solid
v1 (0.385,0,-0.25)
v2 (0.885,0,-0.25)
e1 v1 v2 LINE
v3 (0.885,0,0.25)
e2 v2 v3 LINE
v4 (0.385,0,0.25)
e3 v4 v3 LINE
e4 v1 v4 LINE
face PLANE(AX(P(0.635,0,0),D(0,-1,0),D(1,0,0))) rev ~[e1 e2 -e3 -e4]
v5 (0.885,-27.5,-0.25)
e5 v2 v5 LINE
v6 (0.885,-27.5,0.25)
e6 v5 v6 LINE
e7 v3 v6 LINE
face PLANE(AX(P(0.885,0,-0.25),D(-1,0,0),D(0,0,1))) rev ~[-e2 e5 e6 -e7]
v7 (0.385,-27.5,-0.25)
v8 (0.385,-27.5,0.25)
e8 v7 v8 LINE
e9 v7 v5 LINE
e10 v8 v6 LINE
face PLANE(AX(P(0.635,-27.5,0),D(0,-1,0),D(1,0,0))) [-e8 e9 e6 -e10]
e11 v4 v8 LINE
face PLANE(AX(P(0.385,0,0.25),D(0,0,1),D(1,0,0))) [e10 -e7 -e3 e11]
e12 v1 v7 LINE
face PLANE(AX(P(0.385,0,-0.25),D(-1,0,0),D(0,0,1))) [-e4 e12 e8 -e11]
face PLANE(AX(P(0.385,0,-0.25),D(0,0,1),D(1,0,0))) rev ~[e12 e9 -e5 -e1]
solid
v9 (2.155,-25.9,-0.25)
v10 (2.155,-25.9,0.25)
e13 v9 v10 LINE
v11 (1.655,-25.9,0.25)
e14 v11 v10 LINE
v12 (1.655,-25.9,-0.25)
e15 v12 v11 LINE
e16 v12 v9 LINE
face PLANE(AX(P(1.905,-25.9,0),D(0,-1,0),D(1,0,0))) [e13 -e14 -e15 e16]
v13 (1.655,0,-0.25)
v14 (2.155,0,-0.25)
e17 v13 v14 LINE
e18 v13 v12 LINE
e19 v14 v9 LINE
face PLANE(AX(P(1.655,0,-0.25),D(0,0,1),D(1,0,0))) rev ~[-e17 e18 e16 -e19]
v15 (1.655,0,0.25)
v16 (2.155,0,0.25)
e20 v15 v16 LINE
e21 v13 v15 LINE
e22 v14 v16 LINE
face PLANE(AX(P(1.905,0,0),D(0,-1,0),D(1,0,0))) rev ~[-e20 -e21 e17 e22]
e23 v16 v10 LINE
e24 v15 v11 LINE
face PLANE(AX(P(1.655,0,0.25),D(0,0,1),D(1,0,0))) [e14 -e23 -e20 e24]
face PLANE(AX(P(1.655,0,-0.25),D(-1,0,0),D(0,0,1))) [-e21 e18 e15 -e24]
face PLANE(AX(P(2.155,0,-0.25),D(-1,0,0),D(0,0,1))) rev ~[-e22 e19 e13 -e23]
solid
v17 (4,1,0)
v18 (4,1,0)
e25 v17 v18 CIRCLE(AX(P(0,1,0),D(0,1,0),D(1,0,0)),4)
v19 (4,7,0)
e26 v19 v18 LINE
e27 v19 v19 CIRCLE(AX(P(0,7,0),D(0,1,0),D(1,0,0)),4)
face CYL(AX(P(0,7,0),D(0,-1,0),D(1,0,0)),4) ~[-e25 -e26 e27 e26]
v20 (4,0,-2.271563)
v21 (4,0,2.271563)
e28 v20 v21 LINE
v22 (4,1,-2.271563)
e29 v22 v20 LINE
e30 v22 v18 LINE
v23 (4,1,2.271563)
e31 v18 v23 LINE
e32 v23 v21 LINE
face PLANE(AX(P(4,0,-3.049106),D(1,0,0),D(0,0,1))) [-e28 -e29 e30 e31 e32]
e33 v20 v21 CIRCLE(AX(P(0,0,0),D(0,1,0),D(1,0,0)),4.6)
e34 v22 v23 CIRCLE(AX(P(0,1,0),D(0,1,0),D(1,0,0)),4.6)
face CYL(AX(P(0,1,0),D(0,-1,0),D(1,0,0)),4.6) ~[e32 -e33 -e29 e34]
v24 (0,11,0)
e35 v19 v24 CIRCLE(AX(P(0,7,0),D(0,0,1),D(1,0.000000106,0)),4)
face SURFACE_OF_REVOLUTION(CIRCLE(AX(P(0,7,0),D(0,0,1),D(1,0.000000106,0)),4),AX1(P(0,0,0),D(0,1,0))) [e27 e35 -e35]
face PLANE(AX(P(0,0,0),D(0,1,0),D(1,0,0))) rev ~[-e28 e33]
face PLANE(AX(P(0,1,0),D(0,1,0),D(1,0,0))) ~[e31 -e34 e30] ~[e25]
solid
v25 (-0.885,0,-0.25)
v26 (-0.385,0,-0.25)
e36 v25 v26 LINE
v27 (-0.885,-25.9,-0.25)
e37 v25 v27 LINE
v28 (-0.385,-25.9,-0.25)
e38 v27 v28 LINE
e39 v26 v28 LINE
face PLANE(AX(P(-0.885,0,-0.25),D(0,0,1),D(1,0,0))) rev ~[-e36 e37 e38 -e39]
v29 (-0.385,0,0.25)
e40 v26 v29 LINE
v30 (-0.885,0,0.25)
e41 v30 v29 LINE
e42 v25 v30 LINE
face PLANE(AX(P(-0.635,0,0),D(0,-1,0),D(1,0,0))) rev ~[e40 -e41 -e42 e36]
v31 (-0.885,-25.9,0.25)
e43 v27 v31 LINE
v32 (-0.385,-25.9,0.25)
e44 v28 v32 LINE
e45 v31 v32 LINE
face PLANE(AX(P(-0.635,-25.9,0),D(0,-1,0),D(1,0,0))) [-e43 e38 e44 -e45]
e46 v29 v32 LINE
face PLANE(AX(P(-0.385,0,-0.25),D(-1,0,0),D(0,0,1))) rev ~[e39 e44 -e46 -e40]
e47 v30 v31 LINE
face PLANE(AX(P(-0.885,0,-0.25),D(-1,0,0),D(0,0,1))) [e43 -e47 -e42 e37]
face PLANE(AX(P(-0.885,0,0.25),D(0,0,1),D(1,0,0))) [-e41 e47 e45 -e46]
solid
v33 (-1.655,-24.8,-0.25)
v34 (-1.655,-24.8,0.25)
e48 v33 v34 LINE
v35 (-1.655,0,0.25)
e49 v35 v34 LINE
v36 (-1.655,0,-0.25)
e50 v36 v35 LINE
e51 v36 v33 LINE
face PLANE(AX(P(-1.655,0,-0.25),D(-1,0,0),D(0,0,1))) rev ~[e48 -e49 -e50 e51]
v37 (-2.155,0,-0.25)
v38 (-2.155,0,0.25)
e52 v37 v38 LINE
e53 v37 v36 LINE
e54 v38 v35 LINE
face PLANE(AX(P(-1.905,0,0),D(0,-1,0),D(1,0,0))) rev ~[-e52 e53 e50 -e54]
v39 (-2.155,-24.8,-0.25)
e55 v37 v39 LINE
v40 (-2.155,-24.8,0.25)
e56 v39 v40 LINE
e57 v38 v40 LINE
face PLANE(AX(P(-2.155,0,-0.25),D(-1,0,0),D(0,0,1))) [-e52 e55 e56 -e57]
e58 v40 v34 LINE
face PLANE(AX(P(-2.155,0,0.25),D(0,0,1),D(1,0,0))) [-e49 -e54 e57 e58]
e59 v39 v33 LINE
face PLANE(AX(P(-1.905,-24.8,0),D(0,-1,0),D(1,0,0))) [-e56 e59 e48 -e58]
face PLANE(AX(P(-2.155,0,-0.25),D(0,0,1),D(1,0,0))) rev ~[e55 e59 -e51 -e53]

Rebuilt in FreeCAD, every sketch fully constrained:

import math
import FreeCAD as App
import Part
import Sketcher
from FreeCAD import Vector
Q = App.Units.Quantity


def add_polygon(sketch, points):
    """Adds a closed chain of lines whose ends are joined by coincident constraints."""
    first, n = sketch.GeometryCount, len(points)
    for a, b in zip(points, points[1:] + points[:1]):
        sketch.addGeometry(Part.LineSegment(App.Vector(*a, 0), App.Vector(*b, 0)), False)
    for i in range(n):
        sketch.addConstraint(Sketcher.Constraint("Coincident", first + i, 2, first + (i + 1) % n, 1))

doc = App.newDocument("Part")
params = doc.addObject("Spreadsheet::Sheet", "Params")
for row, (alias, value) in enumerate([
    ("sketch1_radius", "4 mm"),
    ("sketch1_height", "11 mm"),
    ("sketch1_height2", "1 mm"),
    ("sketch1_width", "4.6 mm"),
    ("revolution_angle", "360 deg"),
    ("sketch2_width", "1 mm"),
    ("pocket1_length", "5 mm"),
    ("sketch3_width", "0.5 mm"),
    ("pad1_length", "24.8 mm"),
    ("sketch4_width", "0.5 mm"),
    ("pad2_length", "25.9 mm"),
    ("sketch5_width", "0.5 mm"),
    ("pad3_length", "27.5 mm"),
    ("sketch6_width", "0.5 mm"),
    ("pad4_length", "25.9 mm"),
], start=1):
    params.set(f"A{row}", alias)
    params.set(f"B{row}", "=" + value)
    params.setAlias(f"B{row}", alias)

body = doc.addObject("PartDesign::Body", "Body")

# Sketch on XY plane
sketch1 = doc.addObject("Sketcher::SketchObject", "Sketch")
body.addObject(sketch1)
sketch1.AttachmentSupport = (doc.XY_Plane, [""])
sketch1.MapMode = "FlatFace"
sketch1.addGeometry([
    Part.ArcOfCircle(Part.Circle(Vector(0, 7, 0), Vector(0, 0, 1), 4), math.radians(0), math.radians(90)),  # 0
    Part.LineSegment(Vector(0, 11, 0), Vector(0, 0, 0)),  # 1
    Part.LineSegment(Vector(0, 0, 0), Vector(4.6, 0, 0)),  # 2
    Part.LineSegment(Vector(4.6, 0, 0), Vector(4.6, 1, 0)),  # 3
    Part.LineSegment(Vector(4.6, 1, 0), Vector(4, 1, 0)),  # 4
    Part.LineSegment(Vector(4, 1, 0), Vector(4, 7, 0)),  # 5
], False)
sketch1.addConstraint([
    Sketcher.Constraint("Coincident", 0, 2, 1, 1),
    Sketcher.Constraint("Coincident", 1, 2, 2, 1),
    Sketcher.Constraint("Coincident", 2, 2, 3, 1),
    Sketcher.Constraint("Coincident", 3, 2, 4, 1),
    Sketcher.Constraint("Coincident", 4, 2, 5, 1),
    Sketcher.Constraint("Tangent", 5, 2, 0, 1),
    Sketcher.Constraint("Vertical", 1),
    Sketcher.Constraint("Horizontal", 2),
    Sketcher.Constraint("Vertical", 3),
    Sketcher.Constraint("Horizontal", 4),
    Sketcher.Constraint("Vertical", 5),
    Sketcher.Constraint("Coincident", 1, 2, -1, 1),
    Sketcher.Constraint("PointOnObject", 0, 3, -2),
    Sketcher.Constraint("Radius", 0, Q("4 mm")),
    Sketcher.Constraint("DistanceY", 1, 2, 1, 1, Q("11 mm")),
    Sketcher.Constraint("DistanceY", 3, 1, 3, 2, Q("1 mm")),
    Sketcher.Constraint("DistanceX", 2, 1, 2, 2, Q("4.6 mm")),
])
sketch1.setExpression("Constraints[13]", "Params.sketch1_radius")
sketch1.setExpression("Constraints[14]", "Params.sketch1_height")
sketch1.setExpression("Constraints[15]", "Params.sketch1_height2")
sketch1.setExpression("Constraints[16]", "Params.sketch1_width")
revolution = doc.addObject("PartDesign::Revolution", "Revolution")
body.addObject(revolution)
revolution.Profile = sketch1
revolution.ReferenceAxis = (sketch1, ["V_Axis"])
revolution.setExpression("Angle", "Params.revolution_angle")

# Sketch on XZ plane
sketch2 = doc.addObject("Sketcher::SketchObject", "Sketch001")
body.addObject(sketch2)
sketch2.AttachmentSupport = (doc.XZ_Plane, [""])
sketch2.MapMode = "FlatFace"
add_polygon(sketch2, [(4, 3), (4, -3), (5, -3), (5, 3)])  # lines 0-3
sketch2.addConstraint([
    Sketcher.Constraint("Vertical", 0),
    Sketcher.Constraint("Horizontal", 1),
    Sketcher.Constraint("Vertical", 2),
    Sketcher.Constraint("Horizontal", 3),
    Sketcher.Constraint("DistanceX", 1, 1, 1, 2, Q("1 mm")),
    Sketcher.Constraint("DistanceX", -1, 1, 0, 2, Q("4 mm")),
    Sketcher.Constraint("DistanceY", 0, 2, 0, 1, Q("6.098212 mm")),
    Sketcher.Constraint("DistanceY", 0, 2, -1, 1, Q("3.049106 mm")),
])
sketch2.setExpression("Constraints[8]", "Params.sketch2_width")
pocket1 = doc.addObject("PartDesign::Pocket", "Pocket")
body.addObject(pocket1)
pocket1.Profile = sketch2
pocket1.setExpression("Length", "Params.pocket1_length")
body2 = doc.addObject("PartDesign::Body", "Body001")

# Sketch on XZ plane
sketch3 = doc.addObject("Sketcher::SketchObject", "Sketch002")
body2.addObject(sketch3)
sketch3.AttachmentSupport = (doc.getObject("XZ_Plane001"), [""])
sketch3.MapMode = "FlatFace"
add_polygon(sketch3, [(-2.15, 0.25), (-2.15, -0.25), (-1.66, -0.25), (-1.66, 0.25)])  # lines 0-3
sketch3.addConstraint([
    Sketcher.Constraint("Vertical", 0),
    Sketcher.Constraint("Horizontal", 1),
    Sketcher.Constraint("Vertical", 2),
    Sketcher.Constraint("Horizontal", 3),
    Sketcher.Constraint("Equal", 3, 0),
    Sketcher.Constraint("DistanceX", 1, 1, 1, 2, Q("0.5 mm")),
    Sketcher.Constraint("DistanceY", 0, 2, -1, 1, Q("0.25 mm")),
    Sketcher.Constraint("DistanceX", 0, 2, -1, 1, Q("2.155 mm")),
])
sketch3.setExpression("Constraints[9]", "Params.sketch3_width")
pad1 = doc.addObject("PartDesign::Pad", "Pad")
body2.addObject(pad1)
pad1.Profile = sketch3
pad1.setExpression("Length", "Params.pad1_length")
body3 = doc.addObject("PartDesign::Body", "Body002")

# Sketch on XZ plane
sketch4 = doc.addObject("Sketcher::SketchObject", "Sketch003")
body3.addObject(sketch4)
sketch4.AttachmentSupport = (doc.getObject("XZ_Plane002"), [""])
sketch4.MapMode = "FlatFace"
add_polygon(sketch4, [(-0.9, 0.2), (-0.9, -0.2), (-0.4, -0.2), (-0.4, 0.2)])  # lines 0-3
sketch4.addConstraint([
    Sketcher.Constraint("Vertical", 0),
    Sketcher.Constraint("Horizontal", 1),
    Sketcher.Constraint("Vertical", 2),
    Sketcher.Constraint("Horizontal", 3),
    Sketcher.Constraint("Equal", 3, 0),
    Sketcher.Constraint("DistanceX", 1, 1, 1, 2, Q("0.5 mm")),
    Sketcher.Constraint("DistanceY", 0, 2, -1, 1, Q("0.25 mm")),
    Sketcher.Constraint("DistanceX", 0, 2, -1, 1, Q("0.885 mm")),
])
sketch4.setExpression("Constraints[9]", "Params.sketch4_width")
pad2 = doc.addObject("PartDesign::Pad", "Pad001")
body3.addObject(pad2)
pad2.Profile = sketch4
pad2.setExpression("Length", "Params.pad2_length")
body4 = doc.addObject("PartDesign::Body", "Body003")

# Sketch on XZ plane
sketch5 = doc.addObject("Sketcher::SketchObject", "Sketch004")
body4.addObject(sketch5)
sketch5.AttachmentSupport = (doc.getObject("XZ_Plane003"), [""])
sketch5.MapMode = "FlatFace"
add_polygon(sketch5, [(0.4, 0.2), (0.4, -0.2), (0.9, -0.2), (0.9, 0.2)])  # lines 0-3
sketch5.addConstraint([
    Sketcher.Constraint("Vertical", 0),
    Sketcher.Constraint("Horizontal", 1),
    Sketcher.Constraint("Vertical", 2),
    Sketcher.Constraint("Horizontal", 3),
    Sketcher.Constraint("Equal", 3, 0),
    Sketcher.Constraint("DistanceX", 1, 1, 1, 2, Q("0.5 mm")),
    Sketcher.Constraint("DistanceY", 0, 2, -1, 1, Q("0.25 mm")),
    Sketcher.Constraint("DistanceX", -1, 1, 0, 2, Q("0.385 mm")),
])
sketch5.setExpression("Constraints[9]", "Params.sketch5_width")
pad3 = doc.addObject("PartDesign::Pad", "Pad002")
body4.addObject(pad3)
pad3.Profile = sketch5
pad3.setExpression("Length", "Params.pad3_length")
body5 = doc.addObject("PartDesign::Body", "Body004")

# Sketch on XZ plane
sketch6 = doc.addObject("Sketcher::SketchObject", "Sketch005")
body5.addObject(sketch6)
sketch6.AttachmentSupport = (doc.getObject("XZ_Plane004"), [""])
sketch6.MapMode = "FlatFace"
add_polygon(sketch6, [(1.66, 0.25), (1.66, -0.25), (2.15, -0.25), (2.15, 0.25)])  # lines 0-3
sketch6.addConstraint([
    Sketcher.Constraint("Vertical", 0),
    Sketcher.Constraint("Horizontal", 1),
    Sketcher.Constraint("Vertical", 2),
    Sketcher.Constraint("Horizontal", 3),
    Sketcher.Constraint("Equal", 3, 0),
    Sketcher.Constraint("DistanceX", 1, 1, 1, 2, Q("0.5 mm")),
    Sketcher.Constraint("DistanceY", 0, 2, -1, 1, Q("0.25 mm")),
    Sketcher.Constraint("DistanceX", -1, 1, 0, 2, Q("1.655 mm")),
])
sketch6.setExpression("Constraints[9]", "Params.sketch6_width")
pad4 = doc.addObject("PartDesign::Pad", "Pad003")
body5.addObject(pad4)
pad4.Profile = sketch6
pad4.setExpression("Length", "Params.pad4_length")

doc.recompute()
